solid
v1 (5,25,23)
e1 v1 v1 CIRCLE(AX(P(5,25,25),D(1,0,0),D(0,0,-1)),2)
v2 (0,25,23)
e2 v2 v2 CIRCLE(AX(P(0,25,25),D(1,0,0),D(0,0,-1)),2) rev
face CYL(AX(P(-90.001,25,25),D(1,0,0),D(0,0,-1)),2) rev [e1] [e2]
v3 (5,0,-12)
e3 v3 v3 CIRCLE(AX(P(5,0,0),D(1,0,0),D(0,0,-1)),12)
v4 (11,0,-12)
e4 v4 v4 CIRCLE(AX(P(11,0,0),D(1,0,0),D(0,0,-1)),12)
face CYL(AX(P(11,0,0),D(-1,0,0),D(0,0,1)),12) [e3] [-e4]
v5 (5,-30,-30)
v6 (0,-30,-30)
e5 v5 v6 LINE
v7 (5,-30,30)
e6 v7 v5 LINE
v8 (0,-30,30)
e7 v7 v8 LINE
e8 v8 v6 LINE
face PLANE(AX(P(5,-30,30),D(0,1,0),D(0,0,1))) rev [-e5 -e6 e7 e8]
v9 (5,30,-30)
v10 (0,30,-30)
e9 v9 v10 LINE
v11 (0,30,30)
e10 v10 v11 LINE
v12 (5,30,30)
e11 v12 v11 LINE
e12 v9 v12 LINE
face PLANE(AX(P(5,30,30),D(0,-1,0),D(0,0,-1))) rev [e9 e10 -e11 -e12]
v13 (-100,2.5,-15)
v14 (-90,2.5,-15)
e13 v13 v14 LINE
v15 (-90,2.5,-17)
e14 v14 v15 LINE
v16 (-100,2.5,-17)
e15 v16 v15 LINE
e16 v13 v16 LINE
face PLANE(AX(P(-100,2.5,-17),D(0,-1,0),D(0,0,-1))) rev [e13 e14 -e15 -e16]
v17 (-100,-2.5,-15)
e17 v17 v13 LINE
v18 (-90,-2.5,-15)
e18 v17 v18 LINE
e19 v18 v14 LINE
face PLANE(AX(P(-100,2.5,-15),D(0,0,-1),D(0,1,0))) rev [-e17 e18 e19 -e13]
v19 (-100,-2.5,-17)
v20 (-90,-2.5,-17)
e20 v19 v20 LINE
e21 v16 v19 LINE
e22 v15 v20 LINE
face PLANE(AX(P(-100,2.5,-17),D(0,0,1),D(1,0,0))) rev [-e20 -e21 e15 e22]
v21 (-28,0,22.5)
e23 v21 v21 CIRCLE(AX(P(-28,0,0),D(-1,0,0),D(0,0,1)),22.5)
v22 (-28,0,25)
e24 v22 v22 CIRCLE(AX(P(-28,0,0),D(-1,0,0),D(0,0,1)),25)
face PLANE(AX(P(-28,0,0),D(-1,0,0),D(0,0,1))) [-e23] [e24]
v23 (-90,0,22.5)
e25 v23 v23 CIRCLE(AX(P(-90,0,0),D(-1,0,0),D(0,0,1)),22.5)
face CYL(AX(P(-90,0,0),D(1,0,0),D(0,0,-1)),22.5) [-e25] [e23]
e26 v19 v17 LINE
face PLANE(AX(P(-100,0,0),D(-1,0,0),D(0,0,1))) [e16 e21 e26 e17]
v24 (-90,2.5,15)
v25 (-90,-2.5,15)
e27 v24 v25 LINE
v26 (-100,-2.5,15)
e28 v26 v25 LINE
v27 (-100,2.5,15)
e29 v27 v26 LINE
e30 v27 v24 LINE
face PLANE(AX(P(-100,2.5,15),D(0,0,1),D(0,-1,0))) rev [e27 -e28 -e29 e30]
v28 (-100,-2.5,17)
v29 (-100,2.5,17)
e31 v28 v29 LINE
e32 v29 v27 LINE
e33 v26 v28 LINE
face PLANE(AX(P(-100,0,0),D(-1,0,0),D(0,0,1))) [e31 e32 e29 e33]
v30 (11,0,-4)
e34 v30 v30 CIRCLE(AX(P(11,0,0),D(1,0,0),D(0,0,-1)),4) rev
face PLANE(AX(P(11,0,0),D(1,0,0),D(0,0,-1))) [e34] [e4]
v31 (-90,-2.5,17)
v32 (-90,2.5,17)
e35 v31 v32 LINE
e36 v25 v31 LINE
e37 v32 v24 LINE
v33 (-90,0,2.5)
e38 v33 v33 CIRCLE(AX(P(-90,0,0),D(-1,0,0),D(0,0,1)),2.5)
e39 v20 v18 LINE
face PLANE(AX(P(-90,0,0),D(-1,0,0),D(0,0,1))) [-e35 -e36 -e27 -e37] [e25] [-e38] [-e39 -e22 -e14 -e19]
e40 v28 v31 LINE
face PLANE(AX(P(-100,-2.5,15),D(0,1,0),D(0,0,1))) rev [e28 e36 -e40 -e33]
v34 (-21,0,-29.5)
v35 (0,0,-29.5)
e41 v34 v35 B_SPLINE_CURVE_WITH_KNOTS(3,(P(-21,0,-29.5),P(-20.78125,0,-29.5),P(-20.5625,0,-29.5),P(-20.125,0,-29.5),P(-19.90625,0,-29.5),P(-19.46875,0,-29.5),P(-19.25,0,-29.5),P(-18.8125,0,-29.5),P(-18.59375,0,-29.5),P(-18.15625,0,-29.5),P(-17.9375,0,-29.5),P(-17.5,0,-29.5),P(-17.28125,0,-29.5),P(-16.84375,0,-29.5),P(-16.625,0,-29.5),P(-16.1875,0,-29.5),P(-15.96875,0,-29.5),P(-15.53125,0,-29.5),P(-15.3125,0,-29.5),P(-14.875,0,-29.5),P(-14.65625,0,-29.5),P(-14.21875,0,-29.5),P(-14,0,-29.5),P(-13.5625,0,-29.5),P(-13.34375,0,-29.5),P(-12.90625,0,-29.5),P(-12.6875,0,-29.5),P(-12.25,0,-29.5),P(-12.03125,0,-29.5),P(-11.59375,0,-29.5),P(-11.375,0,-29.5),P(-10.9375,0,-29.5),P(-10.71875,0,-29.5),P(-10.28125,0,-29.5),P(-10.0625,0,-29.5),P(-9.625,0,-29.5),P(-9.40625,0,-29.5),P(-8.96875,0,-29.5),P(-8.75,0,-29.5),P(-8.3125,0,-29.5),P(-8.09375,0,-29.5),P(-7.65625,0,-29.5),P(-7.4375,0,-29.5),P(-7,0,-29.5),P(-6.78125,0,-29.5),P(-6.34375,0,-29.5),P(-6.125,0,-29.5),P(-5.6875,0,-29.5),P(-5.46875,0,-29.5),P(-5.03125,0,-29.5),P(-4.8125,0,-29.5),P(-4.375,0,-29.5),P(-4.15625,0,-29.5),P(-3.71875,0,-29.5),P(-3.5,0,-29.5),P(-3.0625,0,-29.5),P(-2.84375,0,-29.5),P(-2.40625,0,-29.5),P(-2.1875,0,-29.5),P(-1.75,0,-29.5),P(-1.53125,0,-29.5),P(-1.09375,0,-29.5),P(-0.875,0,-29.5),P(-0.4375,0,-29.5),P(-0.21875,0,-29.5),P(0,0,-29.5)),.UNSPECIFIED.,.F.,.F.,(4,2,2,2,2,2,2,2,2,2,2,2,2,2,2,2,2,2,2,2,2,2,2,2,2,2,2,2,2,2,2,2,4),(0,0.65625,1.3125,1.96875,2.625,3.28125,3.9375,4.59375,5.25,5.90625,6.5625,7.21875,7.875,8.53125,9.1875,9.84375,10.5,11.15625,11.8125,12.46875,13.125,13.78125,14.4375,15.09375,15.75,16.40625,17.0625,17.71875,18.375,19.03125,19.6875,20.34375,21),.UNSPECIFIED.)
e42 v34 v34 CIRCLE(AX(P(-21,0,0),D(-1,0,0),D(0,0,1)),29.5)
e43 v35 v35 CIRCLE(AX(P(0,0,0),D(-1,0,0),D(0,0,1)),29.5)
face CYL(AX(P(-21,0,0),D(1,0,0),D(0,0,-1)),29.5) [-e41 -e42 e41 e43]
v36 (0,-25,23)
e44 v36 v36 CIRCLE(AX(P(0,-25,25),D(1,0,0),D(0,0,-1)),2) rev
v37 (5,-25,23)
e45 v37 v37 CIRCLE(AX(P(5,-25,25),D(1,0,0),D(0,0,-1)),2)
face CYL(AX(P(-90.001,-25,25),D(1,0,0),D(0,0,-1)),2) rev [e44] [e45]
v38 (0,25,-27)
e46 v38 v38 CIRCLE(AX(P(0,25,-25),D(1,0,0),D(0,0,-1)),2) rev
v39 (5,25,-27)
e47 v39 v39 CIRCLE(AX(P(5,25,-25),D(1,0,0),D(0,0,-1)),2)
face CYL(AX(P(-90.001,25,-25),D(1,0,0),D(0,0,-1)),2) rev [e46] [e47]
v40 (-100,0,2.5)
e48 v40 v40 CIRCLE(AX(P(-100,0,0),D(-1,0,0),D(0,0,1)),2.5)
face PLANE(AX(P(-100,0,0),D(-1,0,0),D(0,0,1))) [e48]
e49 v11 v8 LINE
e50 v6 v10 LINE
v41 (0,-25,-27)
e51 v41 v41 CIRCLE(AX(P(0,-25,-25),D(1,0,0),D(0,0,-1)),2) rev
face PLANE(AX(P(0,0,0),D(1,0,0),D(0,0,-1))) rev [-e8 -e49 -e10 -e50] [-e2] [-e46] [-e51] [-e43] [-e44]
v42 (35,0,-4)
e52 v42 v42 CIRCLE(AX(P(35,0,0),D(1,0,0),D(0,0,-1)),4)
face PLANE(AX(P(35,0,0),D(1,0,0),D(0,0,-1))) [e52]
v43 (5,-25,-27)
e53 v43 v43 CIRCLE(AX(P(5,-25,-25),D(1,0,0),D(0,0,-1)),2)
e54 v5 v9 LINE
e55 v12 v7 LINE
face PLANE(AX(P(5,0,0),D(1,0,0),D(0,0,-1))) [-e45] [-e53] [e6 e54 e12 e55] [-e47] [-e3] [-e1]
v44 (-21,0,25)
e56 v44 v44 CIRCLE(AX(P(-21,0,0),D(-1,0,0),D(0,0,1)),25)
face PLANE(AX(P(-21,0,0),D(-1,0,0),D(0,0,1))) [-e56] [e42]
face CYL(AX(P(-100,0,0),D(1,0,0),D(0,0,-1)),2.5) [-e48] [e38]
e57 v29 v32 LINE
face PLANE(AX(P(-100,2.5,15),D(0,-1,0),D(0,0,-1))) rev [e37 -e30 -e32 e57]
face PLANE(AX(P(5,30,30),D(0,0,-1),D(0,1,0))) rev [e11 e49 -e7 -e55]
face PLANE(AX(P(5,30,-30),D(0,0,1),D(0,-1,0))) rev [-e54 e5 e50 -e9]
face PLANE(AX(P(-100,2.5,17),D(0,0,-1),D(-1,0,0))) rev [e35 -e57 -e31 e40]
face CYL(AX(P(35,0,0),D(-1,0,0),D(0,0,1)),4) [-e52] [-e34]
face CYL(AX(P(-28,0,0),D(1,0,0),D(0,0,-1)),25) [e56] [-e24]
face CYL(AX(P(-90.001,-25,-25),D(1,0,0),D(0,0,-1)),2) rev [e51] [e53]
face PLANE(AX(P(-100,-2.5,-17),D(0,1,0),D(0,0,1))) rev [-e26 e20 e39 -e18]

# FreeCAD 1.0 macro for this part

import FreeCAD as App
import Part
import Sketcher
from FreeCAD import Vector

doc = App.newDocument("Part")
params = doc.addObject("Spreadsheet::Sheet", "Params")
for row, (alias, value) in enumerate([
    ("sketch1_width", "60 mm"),
    ("pad1_length", "5 mm"),
    ("sketch2_diameter", "59 mm"),
    ("pad2_length", "21 mm"),
    ("sketch3_diameter", "50 mm"),
    ("pad3_length", "7 mm"),
    ("sketch4_diameter", "45 mm"),
    ("pad4_length", "62 mm"),
    ("sketch5_diameter", "4 mm"),
    ("sketch6_diameter", "4 mm"),
    ("sketch7_diameter", "4 mm"),
    ("sketch8_diameter", "4 mm"),
    ("sketch9_diameter", "24 mm"),
    ("pad5_length", "6 mm"),
    ("sketch10_diameter", "8 mm"),
    ("pad6_length", "30 mm"),
    ("sketch11_diameter", "5 mm"),
    ("sketch11_width", "5 mm"),
    ("sketch11_height", "2 mm"),
    ("pad7_length", "10 mm"),
], start=1):
    params.set(f"A{row}", alias)
    params.set(f"B{row}", "=" + value)
    params.setAlias(f"B{row}", alias)

body = doc.addObject("PartDesign::Body", "Body")

# Sketch on YZ plane
sketch1 = body.newObject("Sketcher::SketchObject", "Sketch")
sketch1.AttachmentSupport = (doc.getObject("YZ_Plane"), [""])
sketch1.MapMode = "FlatFace"
sketch1.addGeometry(Part.LineSegment(Vector(30, 30, 0), Vector(-30, 30, 0)), False)
sketch1.addGeometry(Part.LineSegment(Vector(-30, 30, 0), Vector(-30, -30, 0)), False)
sketch1.addGeometry(Part.LineSegment(Vector(-30, -30, 0), Vector(30, -30, 0)), False)
sketch1.addGeometry(Part.LineSegment(Vector(30, -30, 0), Vector(30, 30, 0)), False)
sketch1.addConstraint(Sketcher.Constraint("Coincident", 0, 2, 1, 1))
sketch1.addConstraint(Sketcher.Constraint("Coincident", 1, 2, 2, 1))
sketch1.addConstraint(Sketcher.Constraint("Coincident", 2, 2, 3, 1))
sketch1.addConstraint(Sketcher.Constraint("Coincident", 3, 2, 0, 1))
sketch1.addConstraint(Sketcher.Constraint("Horizontal", 0))
sketch1.addConstraint(Sketcher.Constraint("Vertical", 1))
sketch1.addConstraint(Sketcher.Constraint("Horizontal", 2))
sketch1.addConstraint(Sketcher.Constraint("Vertical", 3))
sketch1.addConstraint(Sketcher.Constraint("Symmetric", 0, 2, 2, 2, -1, 1))
sketch1.addConstraint(Sketcher.Constraint("Equal", 2, 1))
sketch1.addConstraint(Sketcher.Constraint("DistanceX", 0, 2, 0, 1, 60.0))
sketch1.setExpression("Constraints[10]", "Params.sketch1_width")
pad1 = body.newObject("PartDesign::Pad", "Pad")
pad1.Profile = sketch1
pad1.setExpression("Length", "Params.pad1_length")

# Sketch on YZ plane
sketch2 = body.newObject("Sketcher::SketchObject", "Sketch001")
sketch2.AttachmentSupport = (doc.getObject("YZ_Plane"), [""])
sketch2.MapMode = "FlatFace"
sketch2.addGeometry(Part.Circle(Vector(0, 0, 0), Vector(0, 0, 1), 29.5), False)
sketch2.addConstraint(Sketcher.Constraint("Coincident", 0, 3, -1, 1))
sketch2.addConstraint(Sketcher.Constraint("Diameter", 0, 59.0))
sketch2.setExpression("Constraints[1]", "Params.sketch2_diameter")
pad2 = body.newObject("PartDesign::Pad", "Pad001")
pad2.Profile = sketch2
pad2.setExpression("Length", "Params.pad2_length")
pad2.Reversed = True

# Sketch on YZ plane
sketch3 = body.newObject("Sketcher::SketchObject", "Sketch002")
sketch3.AttachmentSupport = (doc.getObject("YZ_Plane"), [""])
sketch3.MapMode = "FlatFace"
sketch3.AttachmentOffset = App.Placement(Vector(0, 0, -21), App.Rotation())
sketch3.addGeometry(Part.Circle(Vector(0, 0, 0), Vector(0, 0, 1), 25), False)
sketch3.addConstraint(Sketcher.Constraint("Coincident", 0, 3, -1, 1))
sketch3.addConstraint(Sketcher.Constraint("Diameter", 0, 50.0))
sketch3.setExpression("Constraints[1]", "Params.sketch3_diameter")
pad3 = body.newObject("PartDesign::Pad", "Pad002")
pad3.Profile = sketch3
pad3.setExpression("Length", "Params.pad3_length")
pad3.Reversed = True

# Sketch on YZ plane
sketch4 = body.newObject("Sketcher::SketchObject", "Sketch003")
sketch4.AttachmentSupport = (doc.getObject("YZ_Plane"), [""])
sketch4.MapMode = "FlatFace"
sketch4.AttachmentOffset = App.Placement(Vector(0, 0, -28), App.Rotation())
sketch4.addGeometry(Part.Circle(Vector(0, 0, 0), Vector(0, 0, 1), 22.5), False)
sketch4.addConstraint(Sketcher.Constraint("Coincident", 0, 3, -1, 1))
sketch4.addConstraint(Sketcher.Constraint("Diameter", 0, 45.0))
sketch4.setExpression("Constraints[1]", "Params.sketch4_diameter")
pad4 = body.newObject("PartDesign::Pad", "Pad003")
pad4.Profile = sketch4
pad4.setExpression("Length", "Params.pad4_length")
pad4.Reversed = True

# Sketch on YZ plane
sketch5 = body.newObject("Sketcher::SketchObject", "Sketch004")
sketch5.AttachmentSupport = (doc.getObject("YZ_Plane"), [""])
sketch5.MapMode = "FlatFace"
sketch5.AttachmentOffset = App.Placement(Vector(0, 0, 5), App.Rotation())
sketch5.addGeometry(Part.Circle(Vector(25, 25, 0), Vector(0, 0, 1), 2), False)
sketch5.addConstraint(Sketcher.Constraint("Diameter", 0, 4.0))
sketch5.addConstraint(Sketcher.Constraint("DistanceX", -1, 1, 0, 3, 25.0))
sketch5.addConstraint(Sketcher.Constraint("DistanceY", -1, 1, 0, 3, 25.0))
sketch5.setExpression("Constraints[0]", "Params.sketch5_diameter")
pocket1 = body.newObject("PartDesign::Pocket", "Pocket")
pocket1.Profile = sketch5
pocket1.Type = "UpToFirst"

# Sketch on YZ plane
sketch6 = body.newObject("Sketcher::SketchObject", "Sketch005")
sketch6.AttachmentSupport = (doc.getObject("YZ_Plane"), [""])
sketch6.MapMode = "FlatFace"
sketch6.AttachmentOffset = App.Placement(Vector(0, 0, 5), App.Rotation())
sketch6.addGeometry(Part.Circle(Vector(25, -25, 0), Vector(0, 0, 1), 2), False)
sketch6.addConstraint(Sketcher.Constraint("Diameter", 0, 4.0))
sketch6.addConstraint(Sketcher.Constraint("DistanceX", -1, 1, 0, 3, 25.0))
sketch6.addConstraint(Sketcher.Constraint("DistanceY", 0, 3, -1, 1, 25.0))
sketch6.setExpression("Constraints[0]", "Params.sketch6_diameter")
pocket2 = body.newObject("PartDesign::Pocket", "Pocket001")
pocket2.Profile = sketch6
pocket2.Type = "UpToFirst"

# Sketch on YZ plane
sketch7 = body.newObject("Sketcher::SketchObject", "Sketch006")
sketch7.AttachmentSupport = (doc.getObject("YZ_Plane"), [""])
sketch7.MapMode = "FlatFace"
sketch7.AttachmentOffset = App.Placement(Vector(0, 0, 5), App.Rotation())
sketch7.addGeometry(Part.Circle(Vector(-25, -25, 0), Vector(0, 0, 1), 2), False)
sketch7.addConstraint(Sketcher.Constraint("Diameter", 0, 4.0))
sketch7.addConstraint(Sketcher.Constraint("DistanceX", 0, 3, -1, 1, 25.0))
sketch7.addConstraint(Sketcher.Constraint("DistanceY", 0, 3, -1, 1, 25.0))
sketch7.setExpression("Constraints[0]", "Params.sketch7_diameter")
pocket3 = body.newObject("PartDesign::Pocket", "Pocket002")
pocket3.Profile = sketch7
pocket3.Type = "UpToFirst"

# Sketch on YZ plane
sketch8 = body.newObject("Sketcher::SketchObject", "Sketch007")
sketch8.AttachmentSupport = (doc.getObject("YZ_Plane"), [""])
sketch8.MapMode = "FlatFace"
sketch8.AttachmentOffset = App.Placement(Vector(0, 0, 5), App.Rotation())
sketch8.addGeometry(Part.Circle(Vector(-25, 25, 0), Vector(0, 0, 1), 2), False)
sketch8.addConstraint(Sketcher.Constraint("Diameter", 0, 4.0))
sketch8.addConstraint(Sketcher.Constraint("DistanceX", 0, 3, -1, 1, 25.0))
sketch8.addConstraint(Sketcher.Constraint("DistanceY", -1, 1, 0, 3, 25.0))
sketch8.setExpression("Constraints[0]", "Params.sketch8_diameter")
pocket4 = body.newObject("PartDesign::Pocket", "Pocket003")
pocket4.Profile = sketch8
pocket4.Type = "UpToFirst"

# Sketch on YZ plane
sketch9 = body.newObject("Sketcher::SketchObject", "Sketch008")
sketch9.AttachmentSupport = (doc.getObject("YZ_Plane"), [""])
sketch9.MapMode = "FlatFace"
sketch9.AttachmentOffset = App.Placement(Vector(0, 0, 5), App.Rotation())
sketch9.addGeometry(Part.Circle(Vector(0, 0, 0), Vector(0, 0, 1), 12), False)
sketch9.addConstraint(Sketcher.Constraint("Coincident", 0, 3, -1, 1))
sketch9.addConstraint(Sketcher.Constraint("Diameter", 0, 24.0))
sketch9.setExpression("Constraints[1]", "Params.sketch9_diameter")
pad5 = body.newObject("PartDesign::Pad", "Pad004")
pad5.Profile = sketch9
pad5.setExpression("Length", "Params.pad5_length")

# Sketch on YZ plane
sketch10 = body.newObject("Sketcher::SketchObject", "Sketch009")
sketch10.AttachmentSupport = (doc.getObject("YZ_Plane"), [""])
sketch10.MapMode = "FlatFace"
sketch10.AttachmentOffset = App.Placement(Vector(0, 0, 5), App.Rotation())
sketch10.addGeometry(Part.Circle(Vector(0, 0, 0), Vector(0, 0, 1), 4), False)
sketch10.addConstraint(Sketcher.Constraint("Coincident", 0, 3, -1, 1))
sketch10.addConstraint(Sketcher.Constraint("Diameter", 0, 8.0))
sketch10.setExpression("Constraints[1]", "Params.sketch10_diameter")
pad6 = body.newObject("PartDesign::Pad", "Pad005")
pad6.Profile = sketch10
pad6.setExpression("Length", "Params.pad6_length")

# Sketch on YZ plane
sketch11 = body.newObject("Sketcher::SketchObject", "Sketch010")
sketch11.AttachmentSupport = (doc.getObject("YZ_Plane"), [""])
sketch11.MapMode = "FlatFace"
sketch11.AttachmentOffset = App.Placement(Vector(0, 0, -90), App.Rotation())
sketch11.addGeometry(Part.Circle(Vector(0, 0, 0), Vector(0, 0, 1), 2.5), False)
sketch11.addGeometry(Part.LineSegment(Vector(2.5, -17, 0), Vector(-2.5, -17, 0)), False)
sketch11.addGeometry(Part.LineSegment(Vector(-2.5, -17, 0), Vector(-2.5, -15, 0)), False)
sketch11.addGeometry(Part.LineSegment(Vector(-2.5, -15, 0), Vector(2.5, -15, 0)), False)
sketch11.addGeometry(Part.LineSegment(Vector(2.5, -15, 0), Vector(2.5, -17, 0)), False)
sketch11.addGeometry(Part.LineSegment(Vector(2.5, 15, 0), Vector(-2.5, 15, 0)), False)
sketch11.addGeometry(Part.LineSegment(Vector(-2.5, 15, 0), Vector(-2.5, 17, 0)), False)
sketch11.addGeometry(Part.LineSegment(Vector(-2.5, 17, 0), Vector(2.5, 17, 0)), False)
sketch11.addGeometry(Part.LineSegment(Vector(2.5, 17, 0), Vector(2.5, 15, 0)), False)
sketch11.addConstraint(Sketcher.Constraint("Coincident", 1, 2, 2, 1))
sketch11.addConstraint(Sketcher.Constraint("Coincident", 2, 2, 3, 1))
sketch11.addConstraint(Sketcher.Constraint("Coincident", 3, 2, 4, 1))
sketch11.addConstraint(Sketcher.Constraint("Coincident", 4, 2, 1, 1))
sketch11.addConstraint(Sketcher.Constraint("Coincident", 5, 2, 6, 1))
sketch11.addConstraint(Sketcher.Constraint("Coincident", 6, 2, 7, 1))
sketch11.addConstraint(Sketcher.Constraint("Coincident", 7, 2, 8, 1))
sketch11.addConstraint(Sketcher.Constraint("Coincident", 8, 2, 5, 1))
sketch11.addConstraint(Sketcher.Constraint("Horizontal", 1))
sketch11.addConstraint(Sketcher.Constraint("Vertical", 2))
sketch11.addConstraint(Sketcher.Constraint("Horizontal", 3))
sketch11.addConstraint(Sketcher.Constraint("Vertical", 4))
sketch11.addConstraint(Sketcher.Constraint("Horizontal", 5))
sketch11.addConstraint(Sketcher.Constraint("Vertical", 6))
sketch11.addConstraint(Sketcher.Constraint("Horizontal", 7))
sketch11.addConstraint(Sketcher.Constraint("Vertical", 8))
sketch11.addConstraint(Sketcher.Constraint("Coincident", 0, 3, -1, 1))
sketch11.addConstraint(Sketcher.Constraint("Symmetric", 3, 2, 5, 2, -1, 1))
sketch11.addConstraint(Sketcher.Constraint("Symmetric", 1, 2, 7, 2, -1, 1))
sketch11.addConstraint(Sketcher.Constraint("Vertical", 2, 2, 5, 2))
sketch11.addConstraint(Sketcher.Constraint("Diameter", 0, 5.0))
sketch11.addConstraint(Sketcher.Constraint("DistanceX", 1, 2, 1, 1, 5.0))
sketch11.addConstraint(Sketcher.Constraint("DistanceY", 2, 1, 2, 2, 2.0))
sketch11.addConstraint(Sketcher.Constraint("DistanceY", 1, 2, -1, 1, 17.0))
sketch11.setExpression("Constraints[20]", "Params.sketch11_diameter")
sketch11.setExpression("Constraints[21]", "Params.sketch11_width")
sketch11.setExpression("Constraints[22]", "Params.sketch11_height")
pad7 = body.newObject("PartDesign::Pad", "Pad006")
pad7.Profile = sketch11
pad7.setExpression("Length", "Params.pad7_length")
pad7.Reversed = True

doc.recompute()
